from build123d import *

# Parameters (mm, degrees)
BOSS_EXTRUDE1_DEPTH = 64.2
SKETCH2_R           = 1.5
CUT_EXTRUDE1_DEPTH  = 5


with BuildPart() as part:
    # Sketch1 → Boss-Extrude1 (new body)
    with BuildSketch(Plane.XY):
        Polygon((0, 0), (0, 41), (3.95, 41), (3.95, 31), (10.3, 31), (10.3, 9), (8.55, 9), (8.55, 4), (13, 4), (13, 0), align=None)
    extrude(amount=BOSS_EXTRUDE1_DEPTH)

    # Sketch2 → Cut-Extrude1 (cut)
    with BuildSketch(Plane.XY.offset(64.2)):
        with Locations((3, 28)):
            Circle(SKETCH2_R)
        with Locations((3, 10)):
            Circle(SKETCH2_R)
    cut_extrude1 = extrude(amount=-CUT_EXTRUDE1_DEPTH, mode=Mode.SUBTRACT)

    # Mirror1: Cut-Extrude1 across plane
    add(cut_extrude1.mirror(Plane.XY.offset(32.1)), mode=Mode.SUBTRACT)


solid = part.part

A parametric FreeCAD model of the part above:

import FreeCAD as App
import Part
import Sketcher


def add_polygon(sketch, points):
    """Adds a closed chain of lines whose ends are joined by coincident constraints."""
    first, n = sketch.GeometryCount, len(points)
    for a, b in zip(points, points[1:] + points[:1]):
        sketch.addGeometry(Part.LineSegment(App.Vector(*a, 0), App.Vector(*b, 0)), False)
    for i in range(n):
        sketch.addConstraint(Sketcher.Constraint("Coincident", first + i, 2, first + (i + 1) % n, 1))

doc = App.newDocument("Part")
body = doc.addObject("PartDesign::Body", "Body")

sketch1 = body.newObject("Sketcher::SketchObject", "Sketch")
sketch1.AttachmentSupport = (doc.getObject("XY_Plane"), [""])
sketch1.MapMode = "FlatFace"
add_polygon(sketch1, [(0, 41), (0, 0), (13, 0), (13, 4), (8.6, 4), (8.6, 9), (10.3, 9), (10.3, 31), (4, 31), (4, 41)])
sketch1.addConstraint(Sketcher.Constraint("Vertical", 0))
sketch1.addConstraint(Sketcher.Constraint("Horizontal", 1))
sketch1.addConstraint(Sketcher.Constraint("Vertical", 2))
sketch1.addConstraint(Sketcher.Constraint("Horizontal", 3))
sketch1.addConstraint(Sketcher.Constraint("Vertical", 4))
sketch1.addConstraint(Sketcher.Constraint("Horizontal", 5))
sketch1.addConstraint(Sketcher.Constraint("Vertical", 6))
sketch1.addConstraint(Sketcher.Constraint("Horizontal", 7))
sketch1.addConstraint(Sketcher.Constraint("Vertical", 8))
sketch1.addConstraint(Sketcher.Constraint("Horizontal", 9))
sketch1.addConstraint(Sketcher.Constraint("Coincident", 0, 2, -1, 1))
sketch1.addConstraint(Sketcher.Constraint("DistanceX", 1, 1, 1, 2, 13.0))
sketch1.addConstraint(Sketcher.Constraint("DistanceY", 0, 2, 0, 1, 41.0))
sketch1.addConstraint(Sketcher.Constraint("DistanceY", 2, 1, 2, 2, 4.0))
sketch1.addConstraint(Sketcher.Constraint("DistanceY", 4, 1, 4, 2, 5.0))
sketch1.addConstraint(Sketcher.Constraint("DistanceY", 6, 1, 6, 2, 22.0))
sketch1.addConstraint(Sketcher.Constraint("DistanceX", 3, 2, 3, 1, 4.45))
sketch1.addConstraint(Sketcher.Constraint("DistanceX", 5, 1, 5, 2, 1.75))
sketch1.addConstraint(Sketcher.Constraint("DistanceX", 7, 2, 7, 1, 6.35))
pad1 = body.newObject("PartDesign::Pad", "Pad")
pad1.Profile = sketch1
pad1.Length = 64.2

sketch2 = body.newObject("Sketcher::SketchObject", "Sketch001")
sketch2.AttachmentSupport = (doc.getObject("XY_Plane"), [""])
sketch2.MapMode = "FlatFace"
sketch2.AttachmentOffset = App.Placement(App.Vector(0, 0, 64.2), App.Rotation())
sketch2.addGeometry(Part.Circle(App.Vector(3, 28, 0), App.Vector(0, 0, 1), 1.5), False)
sketch2.addGeometry(Part.Circle(App.Vector(3, 10, 0), App.Vector(0, 0, 1), 1.5), False)
sketch2.addConstraint(Sketcher.Constraint("Equal", 0, 1))
sketch2.addConstraint(Sketcher.Constraint("Vertical", 0, 3, 1, 3))
sketch2.addConstraint(Sketcher.Constraint("Diameter", 0, 3.0))
sketch2.addConstraint(Sketcher.Constraint("DistanceX", -1, 1, 0, 3, 3.0))
sketch2.addConstraint(Sketcher.Constraint("DistanceY", -1, 1, 0, 3, 28.0))
sketch2.addConstraint(Sketcher.Constraint("DistanceY", -1, 1, 1, 3, 10.0))
pocket1 = body.newObject("PartDesign::Pocket", "Pocket")
pocket1.Profile = sketch2
pocket1.Length = 5
doc.recompute()

datumplane = body.newObject("PartDesign::Plane", "DatumPlane")
datumplane.AttachmentSupport = (doc.getObject("XY_Plane"), [""])
datumplane.MapMode = "FlatFace"
datumplane.AttachmentOffset = App.Placement(App.Vector(0, 0, 32.1), App.Rotation())
mirrored = body.newObject("PartDesign::Mirrored", "Mirrored")
mirrored.Originals = [pocket1]
mirrored.MirrorPlane = (datumplane, [""])
body.Tip = mirrored

doc.recompute()
